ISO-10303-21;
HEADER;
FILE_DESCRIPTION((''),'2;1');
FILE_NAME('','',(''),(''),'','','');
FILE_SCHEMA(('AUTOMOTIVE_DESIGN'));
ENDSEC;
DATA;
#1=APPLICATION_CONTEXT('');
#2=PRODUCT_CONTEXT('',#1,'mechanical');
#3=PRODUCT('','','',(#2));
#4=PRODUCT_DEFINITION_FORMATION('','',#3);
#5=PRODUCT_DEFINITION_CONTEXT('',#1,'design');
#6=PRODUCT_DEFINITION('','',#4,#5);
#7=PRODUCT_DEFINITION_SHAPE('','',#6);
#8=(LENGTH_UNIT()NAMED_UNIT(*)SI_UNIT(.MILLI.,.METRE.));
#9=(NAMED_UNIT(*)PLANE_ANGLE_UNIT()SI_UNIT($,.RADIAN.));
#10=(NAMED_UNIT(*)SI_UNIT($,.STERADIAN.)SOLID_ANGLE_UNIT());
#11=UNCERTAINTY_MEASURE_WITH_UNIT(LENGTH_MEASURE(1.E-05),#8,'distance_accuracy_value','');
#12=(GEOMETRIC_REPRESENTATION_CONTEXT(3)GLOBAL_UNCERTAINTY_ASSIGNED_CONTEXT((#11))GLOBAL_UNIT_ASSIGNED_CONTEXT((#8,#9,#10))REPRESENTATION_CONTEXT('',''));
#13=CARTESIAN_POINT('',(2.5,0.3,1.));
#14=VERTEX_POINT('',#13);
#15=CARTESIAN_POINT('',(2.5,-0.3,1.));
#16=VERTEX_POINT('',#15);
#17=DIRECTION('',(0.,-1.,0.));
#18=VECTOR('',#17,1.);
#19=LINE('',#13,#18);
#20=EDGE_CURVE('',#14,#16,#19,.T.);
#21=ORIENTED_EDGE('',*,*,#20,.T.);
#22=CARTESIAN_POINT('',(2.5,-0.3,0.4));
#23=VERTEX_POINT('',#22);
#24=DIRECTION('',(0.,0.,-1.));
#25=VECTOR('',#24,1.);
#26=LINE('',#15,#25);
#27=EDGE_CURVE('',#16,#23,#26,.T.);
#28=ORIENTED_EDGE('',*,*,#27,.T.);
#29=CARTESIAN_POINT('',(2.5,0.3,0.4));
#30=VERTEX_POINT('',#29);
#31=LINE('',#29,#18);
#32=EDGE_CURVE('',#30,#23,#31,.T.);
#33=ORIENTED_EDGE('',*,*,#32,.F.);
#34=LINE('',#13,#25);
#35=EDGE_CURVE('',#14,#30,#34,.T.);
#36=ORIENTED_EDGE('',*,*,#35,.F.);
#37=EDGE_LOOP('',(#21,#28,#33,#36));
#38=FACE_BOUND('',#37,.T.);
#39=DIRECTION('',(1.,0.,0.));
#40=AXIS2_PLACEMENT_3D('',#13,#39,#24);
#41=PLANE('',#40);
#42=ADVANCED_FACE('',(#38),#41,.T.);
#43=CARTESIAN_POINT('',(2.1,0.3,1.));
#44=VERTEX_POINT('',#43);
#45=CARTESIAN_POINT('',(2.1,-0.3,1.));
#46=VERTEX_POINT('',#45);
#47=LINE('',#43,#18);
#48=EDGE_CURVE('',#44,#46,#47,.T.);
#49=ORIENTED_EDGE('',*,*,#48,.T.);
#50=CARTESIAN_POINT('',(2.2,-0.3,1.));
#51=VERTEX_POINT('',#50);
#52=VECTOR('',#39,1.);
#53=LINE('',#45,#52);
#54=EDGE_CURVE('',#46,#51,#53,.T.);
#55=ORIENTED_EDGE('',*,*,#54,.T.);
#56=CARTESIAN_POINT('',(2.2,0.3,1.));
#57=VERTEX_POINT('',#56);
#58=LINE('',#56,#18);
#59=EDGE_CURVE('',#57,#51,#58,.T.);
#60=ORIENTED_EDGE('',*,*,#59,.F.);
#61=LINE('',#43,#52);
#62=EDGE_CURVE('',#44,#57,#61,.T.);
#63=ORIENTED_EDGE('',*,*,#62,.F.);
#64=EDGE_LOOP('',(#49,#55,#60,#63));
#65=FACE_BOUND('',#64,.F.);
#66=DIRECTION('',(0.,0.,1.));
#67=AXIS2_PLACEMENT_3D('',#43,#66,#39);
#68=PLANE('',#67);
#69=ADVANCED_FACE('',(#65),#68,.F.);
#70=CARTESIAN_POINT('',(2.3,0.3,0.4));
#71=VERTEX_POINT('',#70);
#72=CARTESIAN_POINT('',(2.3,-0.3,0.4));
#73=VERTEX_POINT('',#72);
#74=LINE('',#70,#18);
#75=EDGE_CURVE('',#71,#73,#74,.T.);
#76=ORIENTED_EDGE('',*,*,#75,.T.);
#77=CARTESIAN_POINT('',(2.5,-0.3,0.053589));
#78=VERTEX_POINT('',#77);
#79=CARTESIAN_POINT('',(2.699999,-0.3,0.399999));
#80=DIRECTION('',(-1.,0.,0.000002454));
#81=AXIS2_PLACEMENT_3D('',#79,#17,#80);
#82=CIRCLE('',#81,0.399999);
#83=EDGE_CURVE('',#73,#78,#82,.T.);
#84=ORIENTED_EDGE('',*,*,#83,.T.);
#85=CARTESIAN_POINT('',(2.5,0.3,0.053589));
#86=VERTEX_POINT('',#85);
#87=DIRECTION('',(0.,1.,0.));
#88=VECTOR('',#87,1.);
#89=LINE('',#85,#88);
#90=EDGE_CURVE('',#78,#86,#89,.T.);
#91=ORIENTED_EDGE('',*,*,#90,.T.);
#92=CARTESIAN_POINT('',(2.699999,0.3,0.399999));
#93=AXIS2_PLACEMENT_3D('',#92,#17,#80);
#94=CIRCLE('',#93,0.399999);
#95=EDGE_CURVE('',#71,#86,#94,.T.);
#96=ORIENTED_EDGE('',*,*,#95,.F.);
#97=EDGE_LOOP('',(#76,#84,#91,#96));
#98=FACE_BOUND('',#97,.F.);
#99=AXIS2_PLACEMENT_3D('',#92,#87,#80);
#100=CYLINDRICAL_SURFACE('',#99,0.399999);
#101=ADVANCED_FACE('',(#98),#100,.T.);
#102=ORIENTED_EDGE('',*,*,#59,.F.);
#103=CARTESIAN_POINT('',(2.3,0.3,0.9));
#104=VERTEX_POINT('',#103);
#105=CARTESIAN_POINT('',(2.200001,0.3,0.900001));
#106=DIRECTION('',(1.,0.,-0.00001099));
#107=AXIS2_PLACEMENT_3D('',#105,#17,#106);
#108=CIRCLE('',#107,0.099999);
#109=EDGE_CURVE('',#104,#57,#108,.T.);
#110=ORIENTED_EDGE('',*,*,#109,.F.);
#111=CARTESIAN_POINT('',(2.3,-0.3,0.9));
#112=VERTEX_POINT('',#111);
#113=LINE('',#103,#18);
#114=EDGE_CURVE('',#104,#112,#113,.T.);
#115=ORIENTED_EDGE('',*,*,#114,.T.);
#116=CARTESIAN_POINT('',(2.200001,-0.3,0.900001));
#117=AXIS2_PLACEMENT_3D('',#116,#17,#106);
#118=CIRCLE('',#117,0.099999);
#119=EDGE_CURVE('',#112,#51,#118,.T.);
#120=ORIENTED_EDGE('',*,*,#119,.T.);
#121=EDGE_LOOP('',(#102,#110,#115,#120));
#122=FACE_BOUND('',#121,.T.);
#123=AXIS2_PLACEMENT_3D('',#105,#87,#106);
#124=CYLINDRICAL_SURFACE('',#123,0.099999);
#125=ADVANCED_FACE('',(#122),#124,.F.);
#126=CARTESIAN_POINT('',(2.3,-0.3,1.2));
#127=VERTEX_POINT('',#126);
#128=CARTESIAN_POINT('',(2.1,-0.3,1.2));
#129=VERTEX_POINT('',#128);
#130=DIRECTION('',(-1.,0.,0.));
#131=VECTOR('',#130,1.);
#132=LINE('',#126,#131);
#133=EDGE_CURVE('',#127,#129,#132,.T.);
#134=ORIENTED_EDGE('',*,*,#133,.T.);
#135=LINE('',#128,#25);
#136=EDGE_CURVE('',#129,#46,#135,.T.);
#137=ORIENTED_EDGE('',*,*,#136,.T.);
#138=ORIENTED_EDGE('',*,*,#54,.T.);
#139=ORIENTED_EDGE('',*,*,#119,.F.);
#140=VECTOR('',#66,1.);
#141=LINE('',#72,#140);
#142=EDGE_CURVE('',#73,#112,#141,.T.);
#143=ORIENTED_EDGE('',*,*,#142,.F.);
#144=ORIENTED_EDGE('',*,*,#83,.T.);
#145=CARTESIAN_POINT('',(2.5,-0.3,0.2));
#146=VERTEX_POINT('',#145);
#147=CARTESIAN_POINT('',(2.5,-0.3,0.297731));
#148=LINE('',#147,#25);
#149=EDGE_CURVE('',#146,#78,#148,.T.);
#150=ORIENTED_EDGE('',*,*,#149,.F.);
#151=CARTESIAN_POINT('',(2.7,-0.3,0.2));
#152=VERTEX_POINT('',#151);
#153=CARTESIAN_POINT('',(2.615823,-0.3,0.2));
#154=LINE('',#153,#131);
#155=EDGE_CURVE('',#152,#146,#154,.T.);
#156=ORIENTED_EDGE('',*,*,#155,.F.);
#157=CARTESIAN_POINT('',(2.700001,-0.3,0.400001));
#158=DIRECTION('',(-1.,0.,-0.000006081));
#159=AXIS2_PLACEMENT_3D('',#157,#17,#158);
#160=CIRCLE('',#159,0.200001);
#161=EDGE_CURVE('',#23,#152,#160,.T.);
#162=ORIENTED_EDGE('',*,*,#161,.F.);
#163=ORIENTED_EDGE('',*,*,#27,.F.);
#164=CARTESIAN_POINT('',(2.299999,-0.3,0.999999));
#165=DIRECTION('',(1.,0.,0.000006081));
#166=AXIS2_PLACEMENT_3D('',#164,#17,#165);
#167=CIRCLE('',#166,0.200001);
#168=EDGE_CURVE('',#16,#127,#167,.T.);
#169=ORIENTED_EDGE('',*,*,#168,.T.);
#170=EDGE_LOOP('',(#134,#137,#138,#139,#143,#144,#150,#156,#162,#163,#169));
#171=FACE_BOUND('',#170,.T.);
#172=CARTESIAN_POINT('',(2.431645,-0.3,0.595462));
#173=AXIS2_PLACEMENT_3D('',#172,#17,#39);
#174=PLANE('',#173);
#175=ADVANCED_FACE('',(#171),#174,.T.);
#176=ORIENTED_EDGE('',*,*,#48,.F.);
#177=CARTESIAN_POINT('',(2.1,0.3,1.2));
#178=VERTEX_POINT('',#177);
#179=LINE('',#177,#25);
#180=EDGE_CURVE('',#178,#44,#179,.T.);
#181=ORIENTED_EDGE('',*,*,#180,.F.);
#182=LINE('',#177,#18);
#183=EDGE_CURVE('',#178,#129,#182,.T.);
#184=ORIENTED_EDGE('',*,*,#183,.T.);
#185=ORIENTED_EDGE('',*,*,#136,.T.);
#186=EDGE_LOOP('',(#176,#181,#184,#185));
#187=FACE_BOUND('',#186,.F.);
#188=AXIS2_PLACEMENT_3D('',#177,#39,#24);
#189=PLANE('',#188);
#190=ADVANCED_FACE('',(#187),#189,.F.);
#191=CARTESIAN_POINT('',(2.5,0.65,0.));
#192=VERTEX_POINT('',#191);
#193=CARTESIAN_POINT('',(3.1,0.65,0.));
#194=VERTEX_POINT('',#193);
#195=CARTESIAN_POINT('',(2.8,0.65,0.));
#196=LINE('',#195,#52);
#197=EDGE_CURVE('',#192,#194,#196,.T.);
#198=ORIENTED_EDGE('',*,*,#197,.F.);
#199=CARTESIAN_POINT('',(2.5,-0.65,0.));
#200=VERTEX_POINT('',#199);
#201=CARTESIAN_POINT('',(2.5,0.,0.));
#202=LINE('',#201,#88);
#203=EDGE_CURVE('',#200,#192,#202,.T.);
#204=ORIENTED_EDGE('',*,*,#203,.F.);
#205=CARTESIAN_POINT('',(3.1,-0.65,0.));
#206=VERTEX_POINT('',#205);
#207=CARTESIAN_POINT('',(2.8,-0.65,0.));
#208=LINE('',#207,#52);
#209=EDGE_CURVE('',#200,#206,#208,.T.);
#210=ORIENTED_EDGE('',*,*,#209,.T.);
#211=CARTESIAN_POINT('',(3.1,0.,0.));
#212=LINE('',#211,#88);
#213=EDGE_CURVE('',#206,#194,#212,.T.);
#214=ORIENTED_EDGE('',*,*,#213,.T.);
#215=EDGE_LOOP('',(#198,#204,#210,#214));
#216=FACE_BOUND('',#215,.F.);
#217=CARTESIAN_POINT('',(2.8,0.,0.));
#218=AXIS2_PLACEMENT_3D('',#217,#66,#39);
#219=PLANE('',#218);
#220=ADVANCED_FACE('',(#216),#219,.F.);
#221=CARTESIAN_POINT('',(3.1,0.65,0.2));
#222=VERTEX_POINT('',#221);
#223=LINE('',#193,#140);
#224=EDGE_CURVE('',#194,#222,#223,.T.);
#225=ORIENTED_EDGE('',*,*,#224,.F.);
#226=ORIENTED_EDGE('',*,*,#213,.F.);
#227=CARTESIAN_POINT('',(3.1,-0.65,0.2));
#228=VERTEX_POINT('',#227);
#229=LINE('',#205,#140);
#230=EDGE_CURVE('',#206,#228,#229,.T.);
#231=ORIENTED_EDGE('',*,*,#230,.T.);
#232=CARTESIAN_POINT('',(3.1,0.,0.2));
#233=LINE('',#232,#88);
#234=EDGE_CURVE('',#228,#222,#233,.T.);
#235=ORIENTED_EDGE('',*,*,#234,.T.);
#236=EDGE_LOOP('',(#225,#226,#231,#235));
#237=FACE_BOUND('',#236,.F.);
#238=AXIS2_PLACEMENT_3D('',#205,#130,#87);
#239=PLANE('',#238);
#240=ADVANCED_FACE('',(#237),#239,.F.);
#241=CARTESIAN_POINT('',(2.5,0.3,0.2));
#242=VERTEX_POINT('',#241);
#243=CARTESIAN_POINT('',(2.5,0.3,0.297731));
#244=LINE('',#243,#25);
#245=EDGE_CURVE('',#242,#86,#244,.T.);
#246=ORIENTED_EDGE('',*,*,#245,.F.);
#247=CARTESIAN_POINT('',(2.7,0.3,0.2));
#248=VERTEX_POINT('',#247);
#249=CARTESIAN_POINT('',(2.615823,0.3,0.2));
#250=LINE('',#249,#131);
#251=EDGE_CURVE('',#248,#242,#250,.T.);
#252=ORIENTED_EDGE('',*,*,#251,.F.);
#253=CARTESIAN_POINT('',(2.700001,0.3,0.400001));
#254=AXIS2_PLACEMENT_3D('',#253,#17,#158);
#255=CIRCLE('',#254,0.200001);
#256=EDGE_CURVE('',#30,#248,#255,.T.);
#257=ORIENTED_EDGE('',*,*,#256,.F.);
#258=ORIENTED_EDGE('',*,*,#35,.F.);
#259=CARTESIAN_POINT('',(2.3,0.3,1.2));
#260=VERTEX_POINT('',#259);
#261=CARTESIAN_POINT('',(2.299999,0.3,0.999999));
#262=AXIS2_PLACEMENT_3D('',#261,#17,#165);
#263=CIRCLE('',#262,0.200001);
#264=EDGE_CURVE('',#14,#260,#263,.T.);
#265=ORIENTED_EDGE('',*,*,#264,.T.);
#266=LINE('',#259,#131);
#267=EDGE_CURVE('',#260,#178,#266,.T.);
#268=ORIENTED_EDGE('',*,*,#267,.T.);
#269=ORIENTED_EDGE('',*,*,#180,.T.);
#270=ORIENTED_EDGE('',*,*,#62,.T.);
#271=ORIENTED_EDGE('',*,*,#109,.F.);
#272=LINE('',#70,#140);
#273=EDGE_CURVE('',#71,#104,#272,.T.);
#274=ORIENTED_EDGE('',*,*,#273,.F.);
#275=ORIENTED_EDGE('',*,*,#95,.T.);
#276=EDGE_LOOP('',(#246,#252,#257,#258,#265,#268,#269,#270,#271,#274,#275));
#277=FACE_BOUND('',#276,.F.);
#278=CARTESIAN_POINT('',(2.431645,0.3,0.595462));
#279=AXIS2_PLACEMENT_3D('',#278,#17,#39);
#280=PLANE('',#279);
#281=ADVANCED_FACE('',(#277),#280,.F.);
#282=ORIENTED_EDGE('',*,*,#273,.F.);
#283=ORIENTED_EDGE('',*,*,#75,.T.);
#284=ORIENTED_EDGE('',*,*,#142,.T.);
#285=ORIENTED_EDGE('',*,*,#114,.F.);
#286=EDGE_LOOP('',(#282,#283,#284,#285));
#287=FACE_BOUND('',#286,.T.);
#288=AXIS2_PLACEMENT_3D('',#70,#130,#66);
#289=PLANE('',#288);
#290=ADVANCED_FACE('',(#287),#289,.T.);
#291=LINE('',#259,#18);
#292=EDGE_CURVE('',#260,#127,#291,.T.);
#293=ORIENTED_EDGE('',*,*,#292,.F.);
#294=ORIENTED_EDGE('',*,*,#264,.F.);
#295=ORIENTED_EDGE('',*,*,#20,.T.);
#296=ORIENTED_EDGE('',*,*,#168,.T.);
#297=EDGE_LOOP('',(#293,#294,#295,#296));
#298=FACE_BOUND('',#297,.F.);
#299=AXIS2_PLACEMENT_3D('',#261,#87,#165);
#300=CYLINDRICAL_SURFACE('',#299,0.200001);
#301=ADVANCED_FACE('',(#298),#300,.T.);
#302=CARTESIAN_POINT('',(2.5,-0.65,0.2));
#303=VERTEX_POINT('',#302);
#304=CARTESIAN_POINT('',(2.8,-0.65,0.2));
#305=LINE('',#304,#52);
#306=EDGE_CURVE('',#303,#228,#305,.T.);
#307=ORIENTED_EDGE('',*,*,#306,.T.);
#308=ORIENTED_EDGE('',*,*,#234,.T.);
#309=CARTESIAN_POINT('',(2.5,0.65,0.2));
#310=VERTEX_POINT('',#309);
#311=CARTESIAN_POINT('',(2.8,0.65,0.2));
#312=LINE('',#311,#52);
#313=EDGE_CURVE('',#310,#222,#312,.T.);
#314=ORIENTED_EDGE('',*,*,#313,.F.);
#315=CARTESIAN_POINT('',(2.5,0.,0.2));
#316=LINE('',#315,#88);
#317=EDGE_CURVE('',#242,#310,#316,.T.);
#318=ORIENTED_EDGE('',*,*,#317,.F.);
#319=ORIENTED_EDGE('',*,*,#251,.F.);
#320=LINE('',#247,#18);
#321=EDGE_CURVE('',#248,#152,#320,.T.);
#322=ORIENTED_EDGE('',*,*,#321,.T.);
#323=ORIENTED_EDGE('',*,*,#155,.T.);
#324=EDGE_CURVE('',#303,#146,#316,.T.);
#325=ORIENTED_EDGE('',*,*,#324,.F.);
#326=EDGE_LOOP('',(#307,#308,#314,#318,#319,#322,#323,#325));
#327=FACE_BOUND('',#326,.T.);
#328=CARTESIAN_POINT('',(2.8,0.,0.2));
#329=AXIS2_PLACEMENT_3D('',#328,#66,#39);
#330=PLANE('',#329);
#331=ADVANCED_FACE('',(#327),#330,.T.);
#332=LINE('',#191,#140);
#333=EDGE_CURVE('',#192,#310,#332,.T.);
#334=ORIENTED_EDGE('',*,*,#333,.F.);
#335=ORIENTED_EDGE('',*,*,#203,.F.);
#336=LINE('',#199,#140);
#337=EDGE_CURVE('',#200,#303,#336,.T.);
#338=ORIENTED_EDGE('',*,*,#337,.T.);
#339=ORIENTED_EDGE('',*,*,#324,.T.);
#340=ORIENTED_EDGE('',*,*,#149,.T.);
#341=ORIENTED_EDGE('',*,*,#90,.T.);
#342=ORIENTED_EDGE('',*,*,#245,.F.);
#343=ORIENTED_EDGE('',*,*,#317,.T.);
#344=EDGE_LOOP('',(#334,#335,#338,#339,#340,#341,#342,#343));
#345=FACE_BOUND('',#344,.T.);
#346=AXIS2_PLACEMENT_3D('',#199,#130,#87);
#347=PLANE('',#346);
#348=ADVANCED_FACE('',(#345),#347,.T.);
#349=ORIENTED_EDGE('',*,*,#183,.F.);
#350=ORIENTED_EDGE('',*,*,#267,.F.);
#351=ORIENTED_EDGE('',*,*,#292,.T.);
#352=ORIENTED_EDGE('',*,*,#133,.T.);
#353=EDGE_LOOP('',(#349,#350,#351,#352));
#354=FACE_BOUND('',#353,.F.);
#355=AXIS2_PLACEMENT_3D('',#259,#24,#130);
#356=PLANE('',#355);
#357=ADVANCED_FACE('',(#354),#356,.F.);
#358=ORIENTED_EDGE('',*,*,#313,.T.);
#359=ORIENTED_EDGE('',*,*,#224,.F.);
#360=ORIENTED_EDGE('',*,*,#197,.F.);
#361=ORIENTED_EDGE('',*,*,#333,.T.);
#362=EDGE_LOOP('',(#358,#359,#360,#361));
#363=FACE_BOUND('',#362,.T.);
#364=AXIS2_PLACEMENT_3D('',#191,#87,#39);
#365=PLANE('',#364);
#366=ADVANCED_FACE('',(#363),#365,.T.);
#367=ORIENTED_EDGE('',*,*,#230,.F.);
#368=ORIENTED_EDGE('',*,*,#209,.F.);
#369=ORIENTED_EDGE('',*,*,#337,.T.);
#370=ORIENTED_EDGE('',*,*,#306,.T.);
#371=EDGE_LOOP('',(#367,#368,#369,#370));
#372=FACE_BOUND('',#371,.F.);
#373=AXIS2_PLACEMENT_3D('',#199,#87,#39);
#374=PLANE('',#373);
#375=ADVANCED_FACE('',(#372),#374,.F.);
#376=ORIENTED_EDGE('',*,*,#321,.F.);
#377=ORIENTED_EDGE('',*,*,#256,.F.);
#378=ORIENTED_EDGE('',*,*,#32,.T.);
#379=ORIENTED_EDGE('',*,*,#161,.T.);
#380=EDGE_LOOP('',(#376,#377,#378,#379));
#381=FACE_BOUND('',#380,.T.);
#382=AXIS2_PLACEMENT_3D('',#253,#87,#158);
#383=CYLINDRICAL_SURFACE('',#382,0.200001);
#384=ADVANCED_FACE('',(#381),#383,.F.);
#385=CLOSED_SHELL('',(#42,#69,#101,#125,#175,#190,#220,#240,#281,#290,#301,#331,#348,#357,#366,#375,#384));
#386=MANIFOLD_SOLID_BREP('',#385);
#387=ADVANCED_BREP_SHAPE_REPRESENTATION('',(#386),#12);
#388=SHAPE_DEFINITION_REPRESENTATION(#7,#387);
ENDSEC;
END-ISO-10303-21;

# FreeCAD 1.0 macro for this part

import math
import FreeCAD as App
import Part
import Sketcher
Q = App.Units.Quantity

doc = App.newDocument("Part")
body = doc.addObject("PartDesign::Body", "Body")

# Sketch on XY plane
sketch1 = body.newObject("Sketcher::SketchObject", "Sketch")
sketch1.AttachmentSupport = (doc.getObject("XY_Plane"), [""])
sketch1.MapMode = "FlatFace"
sketch1.addGeometry([
    Part.LineSegment(App.Vector(2.5, 0.7, 0), App.Vector(2.5, -0.7, 0)),
    Part.LineSegment(App.Vector(2.5, -0.7, 0), App.Vector(3.1, -0.7, 0)),
    Part.LineSegment(App.Vector(3.1, -0.7, 0), App.Vector(3.1, 0.7, 0)),
    Part.LineSegment(App.Vector(3.1, 0.7, 0), App.Vector(2.5, 0.7, 0)),
], False)
sketch1.addConstraint([
    Sketcher.Constraint("Coincident", 0, 2, 1, 1),
    Sketcher.Constraint("Coincident", 1, 2, 2, 1),
    Sketcher.Constraint("Coincident", 2, 2, 3, 1),
    Sketcher.Constraint("Coincident", 3, 2, 0, 1),
    Sketcher.Constraint("Vertical", 0),
    Sketcher.Constraint("Horizontal", 1),
    Sketcher.Constraint("Vertical", 2),
    Sketcher.Constraint("Horizontal", 3),
    Sketcher.Constraint("DistanceX", 1, 1, 1, 2, Q("0.6 mm")),
    Sketcher.Constraint("DistanceY", 0, 2, 0, 1, Q("1.3 mm")),
    Sketcher.Constraint("DistanceX", -1, 1, 0, 2, Q("2.5 mm")),
    Sketcher.Constraint("DistanceY", 0, 2, -1, 1, Q("0.65 mm")),
])
pad1 = body.newObject("PartDesign::Pad", "Pad")
pad1.Profile = sketch1
pad1.Length = 0.2
body2 = doc.addObject("PartDesign::Body", "Body001")

# Sketch on XZ plane
sketch2 = body2.newObject("Sketcher::SketchObject", "Sketch001")
sketch2.AttachmentSupport = (doc.getObject("XZ_Plane001"), [""])
sketch2.MapMode = "FlatFace"
sketch2.addGeometry([
    Part.ArcOfCircle(Part.Circle(App.Vector(3.5, 1, 0), App.Vector(0, 0, 1), 0.2), math.radians(0), math.radians(90)),  # 0
    Part.LineSegment(App.Vector(3.5, 1.2, 0), App.Vector(3.3, 1.2, 0)),  # 1
    Part.LineSegment(App.Vector(3.3, 1.2, 0), App.Vector(3.3, 1, 0)),  # 2
    Part.LineSegment(App.Vector(3.3, 1, 0), App.Vector(3.4, 1, 0)),  # 3
    Part.ArcOfCircle(Part.Circle(App.Vector(3.4, 0.9, 0), App.Vector(0, 0, 1), 0.1), math.radians(0), math.radians(90)),  # 4
    Part.LineSegment(App.Vector(3.5, 0.9, 0), App.Vector(3.5, 0.4, 0)),  # 5
    Part.ArcOfCircle(Part.Circle(App.Vector(3.9, 0.4, 0), App.Vector(0, 0, 1), 0.4), math.radians(180), math.radians(270)),  # 6
    Part.LineSegment(App.Vector(3.9, 0, 0), App.Vector(4, 0, 0)),  # 7
    Part.LineSegment(App.Vector(4, 0, 0), App.Vector(4, 0.2, 0)),  # 8
    Part.LineSegment(App.Vector(4, 0.2, 0), App.Vector(3.9, 0.2, 0)),  # 9
    Part.ArcOfCircle(Part.Circle(App.Vector(3.9, 0.4, 0), App.Vector(0, 0, 1), 0.2), math.radians(-180), math.radians(-90)),  # 10
    Part.LineSegment(App.Vector(3.7, 0.4, 0), App.Vector(3.7, 1, 0)),  # 11
], False)
sketch2.addConstraint([
    Sketcher.Constraint("Coincident", 0, 2, 1, 1),
    Sketcher.Constraint("Coincident", 1, 2, 2, 1),
    Sketcher.Constraint("Coincident", 2, 2, 3, 1),
    Sketcher.Constraint("Coincident", 3, 2, 4, 2),
    Sketcher.Constraint("Coincident", 4, 1, 5, 1),
    Sketcher.Constraint("Coincident", 5, 2, 6, 1),
    Sketcher.Constraint("Coincident", 6, 2, 7, 1),
    Sketcher.Constraint("Coincident", 7, 2, 8, 1),
    Sketcher.Constraint("Coincident", 8, 2, 9, 1),
    Sketcher.Constraint("Coincident", 9, 2, 10, 2),
    Sketcher.Constraint("Coincident", 10, 1, 11, 1),
    Sketcher.Constraint("Coincident", 11, 2, 0, 1),
    Sketcher.Constraint("Horizontal", 1),
    Sketcher.Constraint("Vertical", 2),
    Sketcher.Constraint("Horizontal", 3),
    Sketcher.Constraint("Vertical", 5),
    Sketcher.Constraint("Horizontal", 7),
    Sketcher.Constraint("Vertical", 8),
    Sketcher.Constraint("Horizontal", 9),
    Sketcher.Constraint("Vertical", 11),
    Sketcher.Constraint("Coincident", 10, 3, 6, 3),
    Sketcher.Constraint("Equal", 0, 10),
    Sketcher.Constraint("PointOnObject", 6, 2, -1),
    Sketcher.Constraint("Horizontal", 0, 3, 2, 2),
    Sketcher.Constraint("Horizontal", 10, 3, 5, 2),
    Sketcher.Constraint("Horizontal", 5, 2, 10, 1),
    Sketcher.Constraint("Horizontal", 3, 2, 11, 2),
    Sketcher.Constraint("Vertical", 4, 3, 3, 2),
    Sketcher.Constraint("Vertical", 0, 2, 4, 1),
    Sketcher.Constraint("Vertical", 10, 3, 6, 2),
    Sketcher.Constraint("Vertical", 6, 2, 9, 2),
    Sketcher.Constraint("Equal", 3, 7),
    Sketcher.Constraint("Equal", 1, 2),
    Sketcher.Constraint("Equal", 2, 8),
    Sketcher.Constraint("Radius", 0, Q("0.200001 mm")),
    Sketcher.Constraint("Radius", 4, Q("0.099999 mm")),
    Sketcher.Constraint("DistanceY", 5, 2, 5, 1, Q("0.5 mm")),
    Sketcher.Constraint("DistanceY", 11, 1, 11, 2, Q("0.6 mm")),
    Sketcher.Constraint("DistanceX", -1, 1, 7, 2, Q("4 mm")),
])
pad2 = body2.newObject("PartDesign::Pad", "Pad001")
pad2.Profile = sketch2
pad2.Length = 0.6
body3 = doc.addObject("PartDesign::Body", "Body002")
doc.recompute()

body2.Placement = App.Placement(App.Vector(-1.2, 0.3, 0), App.Rotation(App.Vector(0, 0, 1), 0))
boolean = body3.newObject("PartDesign::Boolean", "Boolean")
boolean.Type = "Fuse"
boolean.addObjects([body2])
doc.recompute()

boolean2 = body3.newObject("PartDesign::Boolean", "Boolean001")
boolean2.Type = "Fuse"
boolean2.addObjects([body])

doc.recompute()
